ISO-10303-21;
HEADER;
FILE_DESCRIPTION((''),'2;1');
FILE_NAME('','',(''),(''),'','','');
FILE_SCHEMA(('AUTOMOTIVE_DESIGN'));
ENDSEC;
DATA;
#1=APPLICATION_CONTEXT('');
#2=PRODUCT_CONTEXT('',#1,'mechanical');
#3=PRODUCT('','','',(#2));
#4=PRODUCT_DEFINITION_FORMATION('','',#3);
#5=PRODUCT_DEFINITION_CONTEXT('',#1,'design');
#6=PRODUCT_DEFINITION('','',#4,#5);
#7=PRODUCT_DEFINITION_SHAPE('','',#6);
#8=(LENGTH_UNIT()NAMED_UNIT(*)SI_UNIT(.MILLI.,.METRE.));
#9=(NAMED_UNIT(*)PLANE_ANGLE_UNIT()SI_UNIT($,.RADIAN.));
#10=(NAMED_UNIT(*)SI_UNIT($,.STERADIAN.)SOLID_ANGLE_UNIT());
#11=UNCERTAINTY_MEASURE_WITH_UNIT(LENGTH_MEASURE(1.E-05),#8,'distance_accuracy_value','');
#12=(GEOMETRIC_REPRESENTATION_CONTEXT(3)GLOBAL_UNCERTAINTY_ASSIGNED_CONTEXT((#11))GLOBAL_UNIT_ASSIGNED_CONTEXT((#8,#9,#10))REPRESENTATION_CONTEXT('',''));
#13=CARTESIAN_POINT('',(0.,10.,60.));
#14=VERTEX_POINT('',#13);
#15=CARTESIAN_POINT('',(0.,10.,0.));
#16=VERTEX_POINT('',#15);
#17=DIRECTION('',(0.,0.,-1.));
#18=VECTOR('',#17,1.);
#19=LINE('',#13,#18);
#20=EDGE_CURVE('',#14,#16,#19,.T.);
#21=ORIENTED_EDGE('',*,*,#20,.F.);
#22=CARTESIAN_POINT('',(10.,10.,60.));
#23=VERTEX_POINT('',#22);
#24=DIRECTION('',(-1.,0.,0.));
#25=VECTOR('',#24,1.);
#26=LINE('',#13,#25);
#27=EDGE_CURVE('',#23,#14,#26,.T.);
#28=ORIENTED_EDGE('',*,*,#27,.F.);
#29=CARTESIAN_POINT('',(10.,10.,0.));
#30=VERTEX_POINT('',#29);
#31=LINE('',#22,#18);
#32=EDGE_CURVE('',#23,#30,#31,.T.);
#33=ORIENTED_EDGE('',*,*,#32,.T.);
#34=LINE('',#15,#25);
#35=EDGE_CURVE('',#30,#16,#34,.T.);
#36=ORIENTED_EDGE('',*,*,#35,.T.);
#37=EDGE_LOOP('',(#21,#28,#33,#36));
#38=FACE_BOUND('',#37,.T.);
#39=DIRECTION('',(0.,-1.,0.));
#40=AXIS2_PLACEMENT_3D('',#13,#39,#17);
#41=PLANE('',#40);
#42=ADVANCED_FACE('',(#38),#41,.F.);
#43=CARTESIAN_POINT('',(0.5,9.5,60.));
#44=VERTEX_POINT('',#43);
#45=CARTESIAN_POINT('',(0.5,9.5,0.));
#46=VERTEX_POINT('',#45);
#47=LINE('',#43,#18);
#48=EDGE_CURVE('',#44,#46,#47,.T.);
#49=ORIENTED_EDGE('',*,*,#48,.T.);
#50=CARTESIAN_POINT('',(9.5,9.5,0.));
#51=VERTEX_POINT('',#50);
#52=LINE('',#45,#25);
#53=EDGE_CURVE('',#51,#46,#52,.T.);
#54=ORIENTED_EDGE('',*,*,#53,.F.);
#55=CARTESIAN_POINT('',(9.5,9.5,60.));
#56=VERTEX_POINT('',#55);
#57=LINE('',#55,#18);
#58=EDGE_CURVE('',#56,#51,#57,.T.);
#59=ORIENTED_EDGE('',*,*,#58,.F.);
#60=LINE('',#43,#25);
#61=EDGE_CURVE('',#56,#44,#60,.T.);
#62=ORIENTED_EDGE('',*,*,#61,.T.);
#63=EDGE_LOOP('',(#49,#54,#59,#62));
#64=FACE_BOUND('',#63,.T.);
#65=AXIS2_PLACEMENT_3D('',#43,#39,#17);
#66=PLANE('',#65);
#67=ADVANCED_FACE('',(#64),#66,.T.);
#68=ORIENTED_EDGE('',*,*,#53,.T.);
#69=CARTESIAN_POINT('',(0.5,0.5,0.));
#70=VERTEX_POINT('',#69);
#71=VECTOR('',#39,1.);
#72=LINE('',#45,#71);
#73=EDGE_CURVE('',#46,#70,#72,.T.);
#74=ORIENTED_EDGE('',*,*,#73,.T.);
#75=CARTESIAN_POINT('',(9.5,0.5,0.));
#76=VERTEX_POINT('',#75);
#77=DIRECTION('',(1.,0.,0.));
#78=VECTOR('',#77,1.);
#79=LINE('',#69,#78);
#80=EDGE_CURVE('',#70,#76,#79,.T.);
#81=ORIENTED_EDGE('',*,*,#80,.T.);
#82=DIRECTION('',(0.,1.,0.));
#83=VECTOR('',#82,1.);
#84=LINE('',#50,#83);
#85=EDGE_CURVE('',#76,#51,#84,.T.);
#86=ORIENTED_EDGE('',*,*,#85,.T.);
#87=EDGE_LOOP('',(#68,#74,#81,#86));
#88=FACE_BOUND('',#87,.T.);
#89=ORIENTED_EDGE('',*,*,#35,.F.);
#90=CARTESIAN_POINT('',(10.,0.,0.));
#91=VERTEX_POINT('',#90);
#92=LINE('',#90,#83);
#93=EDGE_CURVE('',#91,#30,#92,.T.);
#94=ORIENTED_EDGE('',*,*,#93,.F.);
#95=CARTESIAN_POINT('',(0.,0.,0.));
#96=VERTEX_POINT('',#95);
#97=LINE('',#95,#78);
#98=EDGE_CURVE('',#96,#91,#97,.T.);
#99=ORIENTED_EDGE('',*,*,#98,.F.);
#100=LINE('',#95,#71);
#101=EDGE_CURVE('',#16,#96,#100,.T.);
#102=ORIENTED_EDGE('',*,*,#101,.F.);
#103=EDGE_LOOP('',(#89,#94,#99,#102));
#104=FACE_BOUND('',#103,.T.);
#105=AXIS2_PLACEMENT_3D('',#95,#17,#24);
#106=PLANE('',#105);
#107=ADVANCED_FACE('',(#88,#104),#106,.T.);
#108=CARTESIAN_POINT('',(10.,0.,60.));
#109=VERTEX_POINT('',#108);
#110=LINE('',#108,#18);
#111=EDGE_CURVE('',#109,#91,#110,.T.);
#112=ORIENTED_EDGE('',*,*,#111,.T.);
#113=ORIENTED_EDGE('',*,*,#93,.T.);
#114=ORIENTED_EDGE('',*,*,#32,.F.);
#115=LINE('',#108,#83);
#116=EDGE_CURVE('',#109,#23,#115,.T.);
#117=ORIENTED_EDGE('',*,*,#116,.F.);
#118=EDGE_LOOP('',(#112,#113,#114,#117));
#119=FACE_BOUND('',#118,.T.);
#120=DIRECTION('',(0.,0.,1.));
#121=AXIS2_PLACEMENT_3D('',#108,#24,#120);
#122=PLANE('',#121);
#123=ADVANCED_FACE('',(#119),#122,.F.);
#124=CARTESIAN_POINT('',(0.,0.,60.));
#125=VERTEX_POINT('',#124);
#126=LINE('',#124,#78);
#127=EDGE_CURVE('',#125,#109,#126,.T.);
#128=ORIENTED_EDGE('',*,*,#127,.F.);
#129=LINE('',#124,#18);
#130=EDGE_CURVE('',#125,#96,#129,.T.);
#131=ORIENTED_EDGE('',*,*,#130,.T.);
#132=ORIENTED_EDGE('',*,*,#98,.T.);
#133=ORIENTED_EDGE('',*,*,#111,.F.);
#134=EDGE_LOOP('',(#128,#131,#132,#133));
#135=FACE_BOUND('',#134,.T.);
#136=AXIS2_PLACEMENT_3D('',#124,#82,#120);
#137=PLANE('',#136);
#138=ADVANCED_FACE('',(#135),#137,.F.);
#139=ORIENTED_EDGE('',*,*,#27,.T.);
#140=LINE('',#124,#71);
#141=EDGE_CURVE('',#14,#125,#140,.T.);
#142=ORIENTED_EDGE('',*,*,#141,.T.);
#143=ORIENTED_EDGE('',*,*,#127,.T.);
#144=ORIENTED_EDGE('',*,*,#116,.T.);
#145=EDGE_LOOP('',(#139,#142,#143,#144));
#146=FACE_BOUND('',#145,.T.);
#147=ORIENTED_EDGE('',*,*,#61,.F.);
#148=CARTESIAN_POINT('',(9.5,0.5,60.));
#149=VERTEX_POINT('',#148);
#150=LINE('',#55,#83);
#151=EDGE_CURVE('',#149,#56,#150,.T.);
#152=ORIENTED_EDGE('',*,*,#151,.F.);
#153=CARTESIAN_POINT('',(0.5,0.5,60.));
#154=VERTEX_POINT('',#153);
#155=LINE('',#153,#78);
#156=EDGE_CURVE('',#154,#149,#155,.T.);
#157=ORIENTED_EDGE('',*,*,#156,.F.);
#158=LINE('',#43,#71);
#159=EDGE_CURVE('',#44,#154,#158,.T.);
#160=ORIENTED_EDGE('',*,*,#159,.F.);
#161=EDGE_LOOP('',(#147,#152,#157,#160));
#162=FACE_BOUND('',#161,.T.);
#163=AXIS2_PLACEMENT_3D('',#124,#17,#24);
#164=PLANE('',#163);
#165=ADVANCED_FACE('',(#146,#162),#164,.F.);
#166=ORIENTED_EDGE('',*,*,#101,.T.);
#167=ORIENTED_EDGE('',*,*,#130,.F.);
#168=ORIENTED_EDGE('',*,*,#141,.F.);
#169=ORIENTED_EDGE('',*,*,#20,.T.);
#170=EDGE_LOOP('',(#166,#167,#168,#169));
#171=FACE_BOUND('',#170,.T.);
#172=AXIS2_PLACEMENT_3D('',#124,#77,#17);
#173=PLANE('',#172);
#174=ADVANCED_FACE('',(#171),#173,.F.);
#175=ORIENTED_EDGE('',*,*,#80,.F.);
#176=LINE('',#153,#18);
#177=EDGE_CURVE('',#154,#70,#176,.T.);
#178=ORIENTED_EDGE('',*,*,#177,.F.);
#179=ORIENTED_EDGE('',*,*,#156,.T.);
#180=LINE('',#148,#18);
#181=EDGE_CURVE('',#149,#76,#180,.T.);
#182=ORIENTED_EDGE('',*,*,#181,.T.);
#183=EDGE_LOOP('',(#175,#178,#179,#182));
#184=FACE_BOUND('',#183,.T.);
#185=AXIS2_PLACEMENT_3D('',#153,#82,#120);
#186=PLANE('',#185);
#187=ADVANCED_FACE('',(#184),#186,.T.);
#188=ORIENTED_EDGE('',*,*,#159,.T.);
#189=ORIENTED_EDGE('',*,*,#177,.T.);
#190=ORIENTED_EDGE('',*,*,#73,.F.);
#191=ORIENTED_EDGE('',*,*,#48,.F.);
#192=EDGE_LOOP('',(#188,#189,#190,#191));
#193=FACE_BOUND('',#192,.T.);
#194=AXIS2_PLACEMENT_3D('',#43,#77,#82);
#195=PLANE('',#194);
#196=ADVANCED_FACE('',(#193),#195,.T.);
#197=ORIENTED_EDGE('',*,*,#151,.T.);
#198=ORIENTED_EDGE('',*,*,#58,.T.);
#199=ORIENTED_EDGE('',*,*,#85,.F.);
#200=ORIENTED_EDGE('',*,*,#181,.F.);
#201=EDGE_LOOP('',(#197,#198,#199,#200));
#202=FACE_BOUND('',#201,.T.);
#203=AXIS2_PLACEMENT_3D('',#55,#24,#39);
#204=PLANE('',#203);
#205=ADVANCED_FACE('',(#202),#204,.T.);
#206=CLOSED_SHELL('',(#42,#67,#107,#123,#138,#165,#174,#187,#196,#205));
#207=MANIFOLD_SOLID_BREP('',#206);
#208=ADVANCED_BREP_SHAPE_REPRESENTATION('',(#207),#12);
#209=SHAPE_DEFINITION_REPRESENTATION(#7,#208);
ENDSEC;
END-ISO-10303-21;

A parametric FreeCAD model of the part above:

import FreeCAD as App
import Part
import Sketcher
from FreeCAD import Vector


def add_polygon(sketch, points):
    """Adds a closed chain of lines whose ends are joined by coincident constraints."""
    first, n = sketch.GeometryCount, len(points)
    for a, b in zip(points, points[1:] + points[:1]):
        sketch.addGeometry(Part.LineSegment(App.Vector(*a, 0), App.Vector(*b, 0)), False)
    for i in range(n):
        sketch.addConstraint(Sketcher.Constraint("Coincident", first + i, 2, first + (i + 1) % n, 1))

doc = App.newDocument("Part")
body = doc.addObject("PartDesign::Body", "Body")

# Sketch on XY plane
sketch1 = doc.addObject("Sketcher::SketchObject", "Sketch")
body.addObject(sketch1)
sketch1.AttachmentSupport = (doc.XY_Plane, [""])
sketch1.MapMode = "FlatFace"
add_polygon(sketch1, [(0, 10), (0, 0), (10, 0), (10, 10)])  # lines 0-3
add_polygon(sketch1, [(9.5, 0.5), (0.5, 0.5), (0.5, 9.5), (9.5, 9.5)])  # lines 4-7
sketch1.addConstraint(Sketcher.Constraint("Vertical", 0))
sketch1.addConstraint(Sketcher.Constraint("Horizontal", 1))
sketch1.addConstraint(Sketcher.Constraint("Vertical", 2))
sketch1.addConstraint(Sketcher.Constraint("Horizontal", 3))
sketch1.addConstraint(Sketcher.Constraint("Horizontal", 4))
sketch1.addConstraint(Sketcher.Constraint("Vertical", 5))
sketch1.addConstraint(Sketcher.Constraint("Horizontal", 6))
sketch1.addConstraint(Sketcher.Constraint("Vertical", 7))
sketch1.addConstraint(Sketcher.Constraint("Coincident", 0, 2, -1, 1))
sketch1.addConstraint(Sketcher.Constraint("Equal", 3, 0))
sketch1.addConstraint(Sketcher.Constraint("Equal", 6, 5))
sketch1.addConstraint(Sketcher.Constraint("DistanceX", 1, 1, 1, 2, 10.0))
sketch1.addConstraint(Sketcher.Constraint("DistanceX", 4, 2, 4, 1, 9.0))
sketch1.addConstraint(Sketcher.Constraint("DistanceX", -1, 1, 4, 2, 0.5))
sketch1.addConstraint(Sketcher.Constraint("DistanceY", -1, 1, 4, 2, 0.5))
pad1 = doc.addObject("PartDesign::Pad", "Pad")
body.addObject(pad1)
pad1.Profile = sketch1
pad1.Length = 60

doc.recompute()
